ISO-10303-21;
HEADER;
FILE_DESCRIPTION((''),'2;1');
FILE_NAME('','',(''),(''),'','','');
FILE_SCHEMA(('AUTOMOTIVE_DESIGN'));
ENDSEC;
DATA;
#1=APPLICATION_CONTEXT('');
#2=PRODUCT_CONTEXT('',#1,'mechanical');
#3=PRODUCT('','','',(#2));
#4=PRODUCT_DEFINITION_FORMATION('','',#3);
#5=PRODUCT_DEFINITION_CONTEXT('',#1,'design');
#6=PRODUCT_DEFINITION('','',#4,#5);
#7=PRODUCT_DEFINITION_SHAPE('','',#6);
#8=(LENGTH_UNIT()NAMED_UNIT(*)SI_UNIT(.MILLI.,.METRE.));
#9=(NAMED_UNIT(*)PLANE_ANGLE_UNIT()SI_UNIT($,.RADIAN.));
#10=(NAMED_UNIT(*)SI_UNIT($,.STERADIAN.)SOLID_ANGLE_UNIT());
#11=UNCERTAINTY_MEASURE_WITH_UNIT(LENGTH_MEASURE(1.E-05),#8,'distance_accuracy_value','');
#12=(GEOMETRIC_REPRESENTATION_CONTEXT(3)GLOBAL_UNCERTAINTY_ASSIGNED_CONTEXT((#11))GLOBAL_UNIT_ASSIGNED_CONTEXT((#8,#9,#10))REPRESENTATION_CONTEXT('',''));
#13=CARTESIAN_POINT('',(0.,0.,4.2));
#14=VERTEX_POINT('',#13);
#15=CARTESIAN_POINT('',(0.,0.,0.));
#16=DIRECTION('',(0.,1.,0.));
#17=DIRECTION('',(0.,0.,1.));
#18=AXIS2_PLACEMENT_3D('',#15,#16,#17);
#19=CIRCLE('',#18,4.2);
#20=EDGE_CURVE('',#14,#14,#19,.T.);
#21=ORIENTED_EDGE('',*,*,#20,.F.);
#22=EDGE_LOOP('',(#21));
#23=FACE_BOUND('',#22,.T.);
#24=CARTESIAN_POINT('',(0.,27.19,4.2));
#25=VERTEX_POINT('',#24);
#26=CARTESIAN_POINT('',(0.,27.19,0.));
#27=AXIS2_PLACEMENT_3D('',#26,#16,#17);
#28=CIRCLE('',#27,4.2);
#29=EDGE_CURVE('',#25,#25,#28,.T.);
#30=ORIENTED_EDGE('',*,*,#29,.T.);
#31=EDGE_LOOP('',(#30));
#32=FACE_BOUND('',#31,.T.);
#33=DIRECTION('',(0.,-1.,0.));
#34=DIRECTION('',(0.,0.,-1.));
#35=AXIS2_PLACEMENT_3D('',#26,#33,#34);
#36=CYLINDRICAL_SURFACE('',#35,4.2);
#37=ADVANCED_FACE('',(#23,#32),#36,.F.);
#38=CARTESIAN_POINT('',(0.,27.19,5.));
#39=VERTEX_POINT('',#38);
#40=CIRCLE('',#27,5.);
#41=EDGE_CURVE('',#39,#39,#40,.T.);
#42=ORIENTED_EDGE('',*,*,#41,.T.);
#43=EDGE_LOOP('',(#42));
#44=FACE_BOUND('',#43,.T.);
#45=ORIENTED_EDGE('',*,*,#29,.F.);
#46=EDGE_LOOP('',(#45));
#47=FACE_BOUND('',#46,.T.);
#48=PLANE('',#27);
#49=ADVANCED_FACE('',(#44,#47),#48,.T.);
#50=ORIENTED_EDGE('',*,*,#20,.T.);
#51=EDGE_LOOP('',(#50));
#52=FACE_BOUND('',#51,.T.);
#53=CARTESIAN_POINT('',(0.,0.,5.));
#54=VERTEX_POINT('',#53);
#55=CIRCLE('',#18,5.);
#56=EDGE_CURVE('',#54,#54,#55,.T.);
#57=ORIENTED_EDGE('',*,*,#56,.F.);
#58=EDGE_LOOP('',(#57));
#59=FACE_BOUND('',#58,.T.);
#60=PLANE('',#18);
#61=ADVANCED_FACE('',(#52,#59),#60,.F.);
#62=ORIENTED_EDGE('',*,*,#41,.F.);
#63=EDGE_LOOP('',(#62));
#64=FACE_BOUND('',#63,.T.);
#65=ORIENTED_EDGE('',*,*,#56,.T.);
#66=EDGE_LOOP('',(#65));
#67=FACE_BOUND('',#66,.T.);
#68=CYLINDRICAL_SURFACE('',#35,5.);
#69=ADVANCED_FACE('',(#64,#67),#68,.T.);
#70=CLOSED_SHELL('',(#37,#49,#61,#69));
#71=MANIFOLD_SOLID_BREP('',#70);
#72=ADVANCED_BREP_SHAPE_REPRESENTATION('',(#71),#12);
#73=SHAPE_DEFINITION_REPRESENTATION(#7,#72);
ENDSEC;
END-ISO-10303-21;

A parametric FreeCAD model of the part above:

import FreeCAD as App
import Part
import Sketcher

V = App.Vector
Q = App.Units.Quantity

doc = App.newDocument("Part")
params = doc.addObject("Spreadsheet::Sheet", "Params")
for row, (alias, value) in enumerate([
    ("sketch1_diameter", "10 mm"),
    ("sketch1_diameter2", "8.4 mm"),
    ("pad1_length", "27.19 mm"),
], start=1):
    params.set(f"A{row}", alias)
    params.set(f"B{row}", "=" + value)
    params.setAlias(f"B{row}", alias)

body = doc.addObject("PartDesign::Body", "Body")

# Sketch on XZ plane
sketch1 = body.newObject("Sketcher::SketchObject", "Sketch")
sketch1.AttachmentSupport = (doc.getObject("XZ_Plane"), [""])
sketch1.MapMode = "FlatFace"
sketch1.addGeometry(Part.Circle(V(0, 0, 0), V(0, 0, 1), 5), False)
sketch1.addGeometry(Part.Circle(V(0, 0, 0), V(0, 0, 1), 4.2), False)
sketch1.addConstraint(Sketcher.Constraint("Coincident", 0, 3, -1, 1))
sketch1.addConstraint(Sketcher.Constraint("Coincident", 1, 3, -1, 1))
sketch1.addConstraint(Sketcher.Constraint("Diameter", 0, Q("10 mm")))
sketch1.addConstraint(Sketcher.Constraint("Diameter", 1, Q("8.4 mm")))
sketch1.setExpression("Constraints[2]", "Params.sketch1_diameter")
sketch1.setExpression("Constraints[3]", "Params.sketch1_diameter2")
pad1 = body.newObject("PartDesign::Pad", "Pad")
pad1.Profile = sketch1
pad1.setExpression("Length", "Params.pad1_length")
pad1.Reversed = True

doc.recompute()
